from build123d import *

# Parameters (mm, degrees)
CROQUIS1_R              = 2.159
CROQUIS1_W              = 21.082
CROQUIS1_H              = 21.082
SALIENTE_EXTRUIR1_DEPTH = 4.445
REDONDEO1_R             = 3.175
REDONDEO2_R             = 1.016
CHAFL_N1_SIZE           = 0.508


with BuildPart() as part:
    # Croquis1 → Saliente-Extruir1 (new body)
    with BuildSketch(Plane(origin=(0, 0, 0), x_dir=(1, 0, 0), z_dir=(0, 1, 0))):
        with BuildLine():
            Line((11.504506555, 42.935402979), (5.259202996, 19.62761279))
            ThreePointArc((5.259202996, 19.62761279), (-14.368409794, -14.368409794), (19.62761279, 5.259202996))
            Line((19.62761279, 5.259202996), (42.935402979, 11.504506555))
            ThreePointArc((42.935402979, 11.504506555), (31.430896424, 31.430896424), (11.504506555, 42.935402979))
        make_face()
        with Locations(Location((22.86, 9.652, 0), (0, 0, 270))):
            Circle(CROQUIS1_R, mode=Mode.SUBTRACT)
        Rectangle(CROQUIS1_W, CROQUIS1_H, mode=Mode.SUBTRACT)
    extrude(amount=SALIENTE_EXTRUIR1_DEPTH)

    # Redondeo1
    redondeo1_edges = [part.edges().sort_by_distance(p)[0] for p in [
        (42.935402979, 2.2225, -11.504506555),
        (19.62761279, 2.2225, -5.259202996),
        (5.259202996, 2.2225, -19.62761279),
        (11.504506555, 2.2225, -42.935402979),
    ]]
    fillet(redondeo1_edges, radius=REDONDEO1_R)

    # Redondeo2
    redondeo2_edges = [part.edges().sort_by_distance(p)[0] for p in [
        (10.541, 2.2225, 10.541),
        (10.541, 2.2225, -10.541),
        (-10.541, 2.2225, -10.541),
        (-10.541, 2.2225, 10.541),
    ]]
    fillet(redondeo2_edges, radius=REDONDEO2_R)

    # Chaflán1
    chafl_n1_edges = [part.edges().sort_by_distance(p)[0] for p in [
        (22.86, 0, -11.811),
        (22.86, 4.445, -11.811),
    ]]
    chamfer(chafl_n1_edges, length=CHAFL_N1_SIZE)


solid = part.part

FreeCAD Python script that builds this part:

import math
import FreeCAD as App
import Part
import Sketcher
from FreeCAD import Vector
Q = App.Units.Quantity


def edges_at(feature, points):
    """Names of the edges that pass closest to the given points."""
    edges = feature.Shape.Edges
    near = lambda p: min(range(len(edges)), key=lambda i: edges[i].distToShape(Part.Vertex(*p))[0])
    return sorted({f"Edge{near(p) + 1}" for p in points})


def add_polygon(sketch, points):
    """Adds a closed chain of lines whose ends are joined by coincident constraints."""
    first, n = sketch.GeometryCount, len(points)
    for a, b in zip(points, points[1:] + points[:1]):
        sketch.addGeometry(Part.LineSegment(App.Vector(*a, 0), App.Vector(*b, 0)), False)
    for i in range(n):
        sketch.addConstraint(Sketcher.Constraint("Coincident", first + i, 2, first + (i + 1) % n, 1))

doc = App.newDocument("Part")
body = doc.addObject("PartDesign::Body", "Body")

sketch1 = doc.addObject("Sketcher::SketchObject", "Sketch")
body.addObject(sketch1)
sketch1.AttachmentSupport = (doc.XZ_Plane, [""])
sketch1.MapMode = "FlatFace"
sketch1.addGeometry(Part.LineSegment(Vector(11.5, -42.9, 0), Vector(5.3, -19.6, 0)), False)
sketch1.addGeometry(Part.ArcOfCircle(Part.Circle(Vector(0, 0, 0), Vector(0, 0, 1), 20.3), math.radians(-15), math.radians(285)), False)
sketch1.addGeometry(Part.LineSegment(Vector(19.6, -5.3, 0), Vector(42.9, -11.5, 0)), False)
sketch1.addGeometry(Part.ArcOfCircle(Part.Circle(Vector(0, 0, 0), Vector(0, 0, 1), 44.5), math.radians(-75), math.radians(-15)), False)
add_polygon(sketch1, [(10.5, 10.5), (-10.5, 10.5), (-10.5, -10.5), (10.5, -10.5)])
sketch1.addGeometry(Part.Circle(Vector(22.9, -9.7, 0), Vector(0, 0, 1), 2.2), False)
sketch1.addConstraint([
    Sketcher.Constraint("Coincident", 0, 2, 1, 2),
    Sketcher.Constraint("Coincident", 1, 1, 2, 1),
    Sketcher.Constraint("Coincident", 2, 2, 3, 2),
    Sketcher.Constraint("Coincident", 3, 1, 0, 1),
    Sketcher.Constraint("Horizontal", 4),
    Sketcher.Constraint("Vertical", 5),
    Sketcher.Constraint("Horizontal", 6),
    Sketcher.Constraint("Vertical", 7),
    Sketcher.Constraint("Coincident", 1, 3, -1, 1),
    Sketcher.Constraint("Coincident", 3, 3, -1, 1),
    Sketcher.Constraint("Symmetric", 4, 2, 6, 2, -1, 1),
    Sketcher.Constraint("Equal", 6, 5),
    Sketcher.Constraint("Radius", 1, Q("0.8 in")),
    Sketcher.Constraint("Diameter", 8, Q("0.17 in")),
    Sketcher.Constraint("Radius", 3, Q("1.75 in")),
    Sketcher.Constraint("Angle", 0, Q("105 deg")),
    Sketcher.Constraint("Angle", 2, Q("-15 deg")),
    Sketcher.Constraint("DistanceX", 4, 2, 4, 1, Q("0.83 in")),
    Sketcher.Constraint("DistanceX", -1, 1, 8, 3, Q("0.9 in")),
    Sketcher.Constraint("DistanceY", 8, 3, -1, 1, Q("0.38 in")),
    Sketcher.Constraint("DistanceX", 0, 2, 2, 2, 37.6762),
    Sketcher.Constraint("DistanceY", 3, 1, 1, 1, 37.6762),
])
pad1 = doc.addObject("PartDesign::Pad", "Pad")
body.addObject(pad1)
pad1.Profile = sketch1
pad1.Length = Q("0.175 in")
pad1.Reversed = True
doc.recompute()

fillet = doc.addObject("PartDesign::Fillet", "Fillet")
body.addObject(fillet)
fillet.Base = (pad1, edges_at(pad1, [
    (42.935, 2.223, -11.505),
    (19.628, 2.223, -5.259),
    (5.259, 2.223, -19.628),
    (11.505, 2.223, -42.935),
]))
fillet.Radius = Q("0.125 in")
doc.recompute()

fillet2 = doc.addObject("PartDesign::Fillet", "Fillet001")
body.addObject(fillet2)
fillet2.Base = (fillet, edges_at(fillet, [
    (10.541, 2.223, 10.541),
    (10.541, 2.223, -10.541),
    (-10.541, 2.223, -10.541),
    (-10.541, 2.223, 10.541),
]))
fillet2.Radius = Q("0.04 in")
doc.recompute()

chamfer = doc.addObject("PartDesign::Chamfer", "Chamfer")
body.addObject(chamfer)
chamfer.Base = (fillet2, edges_at(fillet2, [(22.86, 0, -11.811), (22.86, 4.445, -11.811)]))
chamfer.Size = Q("0.02 in")

doc.recompute()
